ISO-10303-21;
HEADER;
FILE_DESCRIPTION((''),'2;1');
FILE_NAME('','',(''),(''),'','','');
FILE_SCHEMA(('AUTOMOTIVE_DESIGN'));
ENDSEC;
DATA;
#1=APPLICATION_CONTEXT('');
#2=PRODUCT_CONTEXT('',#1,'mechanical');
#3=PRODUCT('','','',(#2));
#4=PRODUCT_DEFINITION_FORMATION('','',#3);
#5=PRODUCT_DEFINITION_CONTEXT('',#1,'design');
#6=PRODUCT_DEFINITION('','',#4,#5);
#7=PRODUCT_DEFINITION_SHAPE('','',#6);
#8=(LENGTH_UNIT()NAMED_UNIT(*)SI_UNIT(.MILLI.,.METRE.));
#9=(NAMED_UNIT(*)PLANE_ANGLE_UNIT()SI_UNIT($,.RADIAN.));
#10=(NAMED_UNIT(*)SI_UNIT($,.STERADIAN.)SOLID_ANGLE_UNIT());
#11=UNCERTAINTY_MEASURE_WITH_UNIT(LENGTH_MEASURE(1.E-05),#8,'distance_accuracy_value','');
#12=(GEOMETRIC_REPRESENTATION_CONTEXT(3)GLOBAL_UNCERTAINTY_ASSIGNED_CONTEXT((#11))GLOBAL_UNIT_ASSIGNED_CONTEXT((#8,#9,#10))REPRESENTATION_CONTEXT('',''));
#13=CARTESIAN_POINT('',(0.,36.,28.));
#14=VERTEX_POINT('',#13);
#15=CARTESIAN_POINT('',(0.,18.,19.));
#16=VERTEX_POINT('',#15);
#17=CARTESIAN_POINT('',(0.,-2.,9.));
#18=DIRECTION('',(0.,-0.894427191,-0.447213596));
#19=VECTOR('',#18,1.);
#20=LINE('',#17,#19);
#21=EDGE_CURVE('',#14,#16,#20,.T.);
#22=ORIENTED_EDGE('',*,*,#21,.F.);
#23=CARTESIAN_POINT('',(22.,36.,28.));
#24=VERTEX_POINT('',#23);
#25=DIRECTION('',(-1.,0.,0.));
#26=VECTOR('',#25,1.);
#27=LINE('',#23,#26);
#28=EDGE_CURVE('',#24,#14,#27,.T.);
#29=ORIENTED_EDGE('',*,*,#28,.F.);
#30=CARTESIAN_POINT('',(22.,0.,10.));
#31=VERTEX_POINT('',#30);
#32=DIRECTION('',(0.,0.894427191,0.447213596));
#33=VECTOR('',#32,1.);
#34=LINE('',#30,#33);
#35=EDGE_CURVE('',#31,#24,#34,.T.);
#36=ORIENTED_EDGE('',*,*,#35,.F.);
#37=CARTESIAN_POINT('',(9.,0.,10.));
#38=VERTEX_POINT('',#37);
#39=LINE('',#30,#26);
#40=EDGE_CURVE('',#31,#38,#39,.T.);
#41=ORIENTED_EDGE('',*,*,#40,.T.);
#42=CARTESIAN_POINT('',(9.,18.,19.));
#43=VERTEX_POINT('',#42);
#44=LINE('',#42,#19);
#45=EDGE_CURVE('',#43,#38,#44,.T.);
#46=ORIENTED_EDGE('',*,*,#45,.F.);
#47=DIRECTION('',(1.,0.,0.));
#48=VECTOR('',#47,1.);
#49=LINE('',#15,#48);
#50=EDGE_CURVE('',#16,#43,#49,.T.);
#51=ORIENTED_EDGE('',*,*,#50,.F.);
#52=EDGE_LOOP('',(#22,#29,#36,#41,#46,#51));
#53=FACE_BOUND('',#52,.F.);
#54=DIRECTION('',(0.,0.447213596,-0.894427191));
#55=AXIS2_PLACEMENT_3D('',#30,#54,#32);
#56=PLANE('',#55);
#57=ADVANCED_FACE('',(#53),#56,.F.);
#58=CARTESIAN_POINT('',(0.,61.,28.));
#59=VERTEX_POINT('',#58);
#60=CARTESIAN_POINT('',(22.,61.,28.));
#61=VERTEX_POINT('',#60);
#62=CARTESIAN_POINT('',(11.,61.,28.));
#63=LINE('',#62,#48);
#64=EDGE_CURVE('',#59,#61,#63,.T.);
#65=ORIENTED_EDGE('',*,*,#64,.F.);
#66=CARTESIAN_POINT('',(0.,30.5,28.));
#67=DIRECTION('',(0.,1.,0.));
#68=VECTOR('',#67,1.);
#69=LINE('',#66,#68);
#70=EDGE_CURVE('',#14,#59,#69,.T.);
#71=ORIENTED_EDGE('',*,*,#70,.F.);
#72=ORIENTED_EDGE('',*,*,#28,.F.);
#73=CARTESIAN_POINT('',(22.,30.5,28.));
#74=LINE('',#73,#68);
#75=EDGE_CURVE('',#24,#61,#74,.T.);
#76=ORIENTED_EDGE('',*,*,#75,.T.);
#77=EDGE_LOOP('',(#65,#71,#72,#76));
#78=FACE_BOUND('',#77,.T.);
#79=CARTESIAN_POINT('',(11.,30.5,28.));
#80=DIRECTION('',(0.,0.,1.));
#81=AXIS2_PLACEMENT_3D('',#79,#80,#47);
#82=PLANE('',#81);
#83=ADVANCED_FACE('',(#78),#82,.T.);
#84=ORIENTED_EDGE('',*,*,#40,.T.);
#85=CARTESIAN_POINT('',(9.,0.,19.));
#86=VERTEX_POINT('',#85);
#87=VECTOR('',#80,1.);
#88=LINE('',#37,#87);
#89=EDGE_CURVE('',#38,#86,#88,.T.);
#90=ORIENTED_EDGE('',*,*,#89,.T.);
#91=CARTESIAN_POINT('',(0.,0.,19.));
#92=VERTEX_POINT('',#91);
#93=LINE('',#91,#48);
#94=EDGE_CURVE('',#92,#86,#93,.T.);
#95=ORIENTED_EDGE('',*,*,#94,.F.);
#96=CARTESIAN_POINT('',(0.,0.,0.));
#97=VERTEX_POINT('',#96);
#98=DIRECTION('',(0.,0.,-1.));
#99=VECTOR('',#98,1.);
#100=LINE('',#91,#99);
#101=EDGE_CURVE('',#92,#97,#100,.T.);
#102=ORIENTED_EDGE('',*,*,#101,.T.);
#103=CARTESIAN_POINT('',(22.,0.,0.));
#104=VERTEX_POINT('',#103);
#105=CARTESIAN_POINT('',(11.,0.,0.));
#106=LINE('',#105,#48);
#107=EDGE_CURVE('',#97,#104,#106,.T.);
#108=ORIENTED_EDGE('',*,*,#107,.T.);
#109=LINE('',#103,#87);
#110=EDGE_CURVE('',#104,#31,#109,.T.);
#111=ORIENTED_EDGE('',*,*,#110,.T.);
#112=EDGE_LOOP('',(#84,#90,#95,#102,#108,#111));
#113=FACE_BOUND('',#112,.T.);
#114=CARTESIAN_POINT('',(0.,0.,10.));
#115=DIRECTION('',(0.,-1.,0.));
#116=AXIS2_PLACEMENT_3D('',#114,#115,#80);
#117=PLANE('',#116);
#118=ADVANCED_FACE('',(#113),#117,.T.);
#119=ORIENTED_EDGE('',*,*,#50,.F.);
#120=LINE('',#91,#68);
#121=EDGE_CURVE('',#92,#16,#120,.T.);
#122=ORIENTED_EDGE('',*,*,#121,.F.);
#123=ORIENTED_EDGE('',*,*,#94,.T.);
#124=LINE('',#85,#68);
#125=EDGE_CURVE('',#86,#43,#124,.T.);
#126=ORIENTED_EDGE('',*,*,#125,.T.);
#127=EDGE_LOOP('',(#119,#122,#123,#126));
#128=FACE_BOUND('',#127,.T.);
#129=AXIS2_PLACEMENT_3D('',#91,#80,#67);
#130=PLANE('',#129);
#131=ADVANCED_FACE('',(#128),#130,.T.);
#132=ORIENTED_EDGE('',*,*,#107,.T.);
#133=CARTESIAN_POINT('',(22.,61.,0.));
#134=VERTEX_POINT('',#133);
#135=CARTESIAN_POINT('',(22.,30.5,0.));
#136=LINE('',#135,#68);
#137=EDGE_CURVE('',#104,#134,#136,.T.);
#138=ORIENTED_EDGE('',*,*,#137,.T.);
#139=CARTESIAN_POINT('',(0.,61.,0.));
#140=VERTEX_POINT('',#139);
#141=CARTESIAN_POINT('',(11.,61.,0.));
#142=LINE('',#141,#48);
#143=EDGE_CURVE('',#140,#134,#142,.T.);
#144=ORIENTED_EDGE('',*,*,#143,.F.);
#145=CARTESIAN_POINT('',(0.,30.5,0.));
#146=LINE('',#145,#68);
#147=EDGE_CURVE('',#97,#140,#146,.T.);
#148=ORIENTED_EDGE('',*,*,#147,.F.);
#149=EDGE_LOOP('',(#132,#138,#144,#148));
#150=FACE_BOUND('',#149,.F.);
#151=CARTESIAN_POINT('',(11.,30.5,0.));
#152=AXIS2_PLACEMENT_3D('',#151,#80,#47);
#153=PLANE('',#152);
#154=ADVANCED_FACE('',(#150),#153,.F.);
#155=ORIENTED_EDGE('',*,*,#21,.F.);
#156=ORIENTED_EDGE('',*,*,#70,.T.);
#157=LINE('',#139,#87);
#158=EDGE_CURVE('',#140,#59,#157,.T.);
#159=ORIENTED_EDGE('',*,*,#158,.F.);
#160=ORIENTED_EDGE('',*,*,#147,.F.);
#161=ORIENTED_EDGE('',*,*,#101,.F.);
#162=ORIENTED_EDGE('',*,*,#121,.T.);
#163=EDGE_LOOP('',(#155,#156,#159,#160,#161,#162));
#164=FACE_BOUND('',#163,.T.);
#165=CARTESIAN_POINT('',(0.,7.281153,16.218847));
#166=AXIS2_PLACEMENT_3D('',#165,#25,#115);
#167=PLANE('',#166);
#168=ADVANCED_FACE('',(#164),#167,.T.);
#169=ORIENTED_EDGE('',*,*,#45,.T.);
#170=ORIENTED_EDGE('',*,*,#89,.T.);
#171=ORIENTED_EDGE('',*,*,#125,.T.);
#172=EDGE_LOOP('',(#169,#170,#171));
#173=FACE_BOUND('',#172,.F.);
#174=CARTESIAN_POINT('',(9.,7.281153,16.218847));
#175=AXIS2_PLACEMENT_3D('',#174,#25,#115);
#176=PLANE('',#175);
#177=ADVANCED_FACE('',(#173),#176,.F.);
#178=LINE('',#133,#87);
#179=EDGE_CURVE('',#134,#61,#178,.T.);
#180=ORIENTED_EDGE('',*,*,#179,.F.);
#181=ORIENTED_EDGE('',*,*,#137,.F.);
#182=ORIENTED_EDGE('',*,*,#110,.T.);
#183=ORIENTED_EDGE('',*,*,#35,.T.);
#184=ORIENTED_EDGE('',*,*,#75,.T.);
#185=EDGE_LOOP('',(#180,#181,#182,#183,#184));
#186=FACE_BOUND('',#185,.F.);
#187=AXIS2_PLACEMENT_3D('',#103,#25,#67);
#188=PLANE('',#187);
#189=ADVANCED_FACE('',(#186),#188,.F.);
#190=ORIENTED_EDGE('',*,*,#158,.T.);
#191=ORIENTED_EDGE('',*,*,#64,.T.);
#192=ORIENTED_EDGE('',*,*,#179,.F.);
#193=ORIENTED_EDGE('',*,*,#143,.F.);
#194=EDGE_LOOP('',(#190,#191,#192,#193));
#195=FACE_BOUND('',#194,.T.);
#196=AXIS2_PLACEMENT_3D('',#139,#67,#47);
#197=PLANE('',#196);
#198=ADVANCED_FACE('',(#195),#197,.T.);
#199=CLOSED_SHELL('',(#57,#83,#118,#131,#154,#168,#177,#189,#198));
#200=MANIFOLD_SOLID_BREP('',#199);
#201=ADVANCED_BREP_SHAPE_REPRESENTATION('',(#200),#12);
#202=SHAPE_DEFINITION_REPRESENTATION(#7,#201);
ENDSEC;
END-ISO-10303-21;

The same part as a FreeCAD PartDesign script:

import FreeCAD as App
import Part
import Sketcher

V = App.Vector
Q = App.Units.Quantity

doc = App.newDocument("Part")
body = doc.addObject("PartDesign::Body", "Body")

# Sketch on XY plane
sketch1 = doc.addObject("Sketcher::SketchObject", "Sketch")
body.addObject(sketch1)
sketch1.AttachmentSupport = (doc.XY_Plane, [""])
sketch1.MapMode = "FlatFace"
sketch1.addGeometry([
    Part.LineSegment(V(0, 61, 0), V(0, 0, 0)),
    Part.LineSegment(V(0, 0, 0), V(22, 0, 0)),
    Part.LineSegment(V(22, 0, 0), V(22, 61, 0)),
    Part.LineSegment(V(22, 61, 0), V(0, 61, 0)),
], False)
sketch1.addConstraint([
    Sketcher.Constraint("Coincident", 0, 2, 1, 1),
    Sketcher.Constraint("Coincident", 1, 2, 2, 1),
    Sketcher.Constraint("Coincident", 2, 2, 3, 1),
    Sketcher.Constraint("Coincident", 3, 2, 0, 1),
    Sketcher.Constraint("Vertical", 0),
    Sketcher.Constraint("Horizontal", 1),
    Sketcher.Constraint("Vertical", 2),
    Sketcher.Constraint("Horizontal", 3),
    Sketcher.Constraint("Coincident", 0, 2, -1, 1),
    Sketcher.Constraint("DistanceX", 1, 1, 1, 2, Q("22 mm")),
    Sketcher.Constraint("DistanceY", 0, 2, 0, 1, Q("61 mm")),
])
pad1 = doc.addObject("PartDesign::Pad", "Pad")
body.addObject(pad1)
pad1.Profile = sketch1
pad1.Length = 28

# Sketch on YZ plane
sketch2 = doc.addObject("Sketcher::SketchObject", "Sketch001")
body.addObject(sketch2)
sketch2.AttachmentSupport = (doc.YZ_Plane, [""])
sketch2.MapMode = "FlatFace"
sketch2.AttachmentOffset = App.Placement(V(0, 0, 22), App.Rotation())
sketch2.addGeometry([
    Part.LineSegment(V(36, 28, 0), V(0, 28, 0)),
    Part.LineSegment(V(0, 28, 0), V(0, 10, 0)),
    Part.LineSegment(V(0, 10, 0), V(36, 28, 0)),
], False)
sketch2.addConstraint([
    Sketcher.Constraint("Coincident", 0, 2, 1, 1),
    Sketcher.Constraint("Coincident", 1, 2, 2, 1),
    Sketcher.Constraint("Coincident", 2, 2, 0, 1),
    Sketcher.Constraint("Horizontal", 0),
    Sketcher.Constraint("Vertical", 1),
    Sketcher.Constraint("PointOnObject", 0, 2, -2),
    Sketcher.Constraint("DistanceX", 0, 2, 0, 1, Q("36 mm")),
    Sketcher.Constraint("DistanceY", 1, 2, 1, 1, Q("18 mm")),
    Sketcher.Constraint("DistanceY", -1, 1, 0, 2, Q("28 mm")),
])
pocket1 = doc.addObject("PartDesign::Pocket", "Pocket")
body.addObject(pocket1)
pocket1.Profile = sketch2
pocket1.Type = "ThroughAll"

# Sketch on YZ plane
sketch3 = doc.addObject("Sketcher::SketchObject", "Sketch002")
body.addObject(sketch3)
sketch3.AttachmentSupport = (doc.YZ_Plane, [""])
sketch3.MapMode = "FlatFace"
sketch3.addGeometry([
    Part.LineSegment(V(18, 19, 0), V(0, 10, 0)),
    Part.LineSegment(V(0, 10, 0), V(0, 19, 0)),
    Part.LineSegment(V(0, 19, 0), V(18, 19, 0)),
], False)
sketch3.addConstraint([
    Sketcher.Constraint("Coincident", 0, 2, 1, 1),
    Sketcher.Constraint("Coincident", 1, 2, 2, 1),
    Sketcher.Constraint("Coincident", 2, 2, 0, 1),
    Sketcher.Constraint("Vertical", 1),
    Sketcher.Constraint("Horizontal", 2),
    Sketcher.Constraint("PointOnObject", 0, 2, -2),
    Sketcher.Constraint("DistanceX", 2, 1, 2, 2, Q("18 mm")),
    Sketcher.Constraint("DistanceY", 1, 1, 1, 2, Q("9 mm")),
    Sketcher.Constraint("DistanceY", -1, 1, 0, 2, Q("10 mm")),
])
pad2 = doc.addObject("PartDesign::Pad", "Pad001")
body.addObject(pad2)
pad2.Profile = sketch3
pad2.Length = 9

doc.recompute()
